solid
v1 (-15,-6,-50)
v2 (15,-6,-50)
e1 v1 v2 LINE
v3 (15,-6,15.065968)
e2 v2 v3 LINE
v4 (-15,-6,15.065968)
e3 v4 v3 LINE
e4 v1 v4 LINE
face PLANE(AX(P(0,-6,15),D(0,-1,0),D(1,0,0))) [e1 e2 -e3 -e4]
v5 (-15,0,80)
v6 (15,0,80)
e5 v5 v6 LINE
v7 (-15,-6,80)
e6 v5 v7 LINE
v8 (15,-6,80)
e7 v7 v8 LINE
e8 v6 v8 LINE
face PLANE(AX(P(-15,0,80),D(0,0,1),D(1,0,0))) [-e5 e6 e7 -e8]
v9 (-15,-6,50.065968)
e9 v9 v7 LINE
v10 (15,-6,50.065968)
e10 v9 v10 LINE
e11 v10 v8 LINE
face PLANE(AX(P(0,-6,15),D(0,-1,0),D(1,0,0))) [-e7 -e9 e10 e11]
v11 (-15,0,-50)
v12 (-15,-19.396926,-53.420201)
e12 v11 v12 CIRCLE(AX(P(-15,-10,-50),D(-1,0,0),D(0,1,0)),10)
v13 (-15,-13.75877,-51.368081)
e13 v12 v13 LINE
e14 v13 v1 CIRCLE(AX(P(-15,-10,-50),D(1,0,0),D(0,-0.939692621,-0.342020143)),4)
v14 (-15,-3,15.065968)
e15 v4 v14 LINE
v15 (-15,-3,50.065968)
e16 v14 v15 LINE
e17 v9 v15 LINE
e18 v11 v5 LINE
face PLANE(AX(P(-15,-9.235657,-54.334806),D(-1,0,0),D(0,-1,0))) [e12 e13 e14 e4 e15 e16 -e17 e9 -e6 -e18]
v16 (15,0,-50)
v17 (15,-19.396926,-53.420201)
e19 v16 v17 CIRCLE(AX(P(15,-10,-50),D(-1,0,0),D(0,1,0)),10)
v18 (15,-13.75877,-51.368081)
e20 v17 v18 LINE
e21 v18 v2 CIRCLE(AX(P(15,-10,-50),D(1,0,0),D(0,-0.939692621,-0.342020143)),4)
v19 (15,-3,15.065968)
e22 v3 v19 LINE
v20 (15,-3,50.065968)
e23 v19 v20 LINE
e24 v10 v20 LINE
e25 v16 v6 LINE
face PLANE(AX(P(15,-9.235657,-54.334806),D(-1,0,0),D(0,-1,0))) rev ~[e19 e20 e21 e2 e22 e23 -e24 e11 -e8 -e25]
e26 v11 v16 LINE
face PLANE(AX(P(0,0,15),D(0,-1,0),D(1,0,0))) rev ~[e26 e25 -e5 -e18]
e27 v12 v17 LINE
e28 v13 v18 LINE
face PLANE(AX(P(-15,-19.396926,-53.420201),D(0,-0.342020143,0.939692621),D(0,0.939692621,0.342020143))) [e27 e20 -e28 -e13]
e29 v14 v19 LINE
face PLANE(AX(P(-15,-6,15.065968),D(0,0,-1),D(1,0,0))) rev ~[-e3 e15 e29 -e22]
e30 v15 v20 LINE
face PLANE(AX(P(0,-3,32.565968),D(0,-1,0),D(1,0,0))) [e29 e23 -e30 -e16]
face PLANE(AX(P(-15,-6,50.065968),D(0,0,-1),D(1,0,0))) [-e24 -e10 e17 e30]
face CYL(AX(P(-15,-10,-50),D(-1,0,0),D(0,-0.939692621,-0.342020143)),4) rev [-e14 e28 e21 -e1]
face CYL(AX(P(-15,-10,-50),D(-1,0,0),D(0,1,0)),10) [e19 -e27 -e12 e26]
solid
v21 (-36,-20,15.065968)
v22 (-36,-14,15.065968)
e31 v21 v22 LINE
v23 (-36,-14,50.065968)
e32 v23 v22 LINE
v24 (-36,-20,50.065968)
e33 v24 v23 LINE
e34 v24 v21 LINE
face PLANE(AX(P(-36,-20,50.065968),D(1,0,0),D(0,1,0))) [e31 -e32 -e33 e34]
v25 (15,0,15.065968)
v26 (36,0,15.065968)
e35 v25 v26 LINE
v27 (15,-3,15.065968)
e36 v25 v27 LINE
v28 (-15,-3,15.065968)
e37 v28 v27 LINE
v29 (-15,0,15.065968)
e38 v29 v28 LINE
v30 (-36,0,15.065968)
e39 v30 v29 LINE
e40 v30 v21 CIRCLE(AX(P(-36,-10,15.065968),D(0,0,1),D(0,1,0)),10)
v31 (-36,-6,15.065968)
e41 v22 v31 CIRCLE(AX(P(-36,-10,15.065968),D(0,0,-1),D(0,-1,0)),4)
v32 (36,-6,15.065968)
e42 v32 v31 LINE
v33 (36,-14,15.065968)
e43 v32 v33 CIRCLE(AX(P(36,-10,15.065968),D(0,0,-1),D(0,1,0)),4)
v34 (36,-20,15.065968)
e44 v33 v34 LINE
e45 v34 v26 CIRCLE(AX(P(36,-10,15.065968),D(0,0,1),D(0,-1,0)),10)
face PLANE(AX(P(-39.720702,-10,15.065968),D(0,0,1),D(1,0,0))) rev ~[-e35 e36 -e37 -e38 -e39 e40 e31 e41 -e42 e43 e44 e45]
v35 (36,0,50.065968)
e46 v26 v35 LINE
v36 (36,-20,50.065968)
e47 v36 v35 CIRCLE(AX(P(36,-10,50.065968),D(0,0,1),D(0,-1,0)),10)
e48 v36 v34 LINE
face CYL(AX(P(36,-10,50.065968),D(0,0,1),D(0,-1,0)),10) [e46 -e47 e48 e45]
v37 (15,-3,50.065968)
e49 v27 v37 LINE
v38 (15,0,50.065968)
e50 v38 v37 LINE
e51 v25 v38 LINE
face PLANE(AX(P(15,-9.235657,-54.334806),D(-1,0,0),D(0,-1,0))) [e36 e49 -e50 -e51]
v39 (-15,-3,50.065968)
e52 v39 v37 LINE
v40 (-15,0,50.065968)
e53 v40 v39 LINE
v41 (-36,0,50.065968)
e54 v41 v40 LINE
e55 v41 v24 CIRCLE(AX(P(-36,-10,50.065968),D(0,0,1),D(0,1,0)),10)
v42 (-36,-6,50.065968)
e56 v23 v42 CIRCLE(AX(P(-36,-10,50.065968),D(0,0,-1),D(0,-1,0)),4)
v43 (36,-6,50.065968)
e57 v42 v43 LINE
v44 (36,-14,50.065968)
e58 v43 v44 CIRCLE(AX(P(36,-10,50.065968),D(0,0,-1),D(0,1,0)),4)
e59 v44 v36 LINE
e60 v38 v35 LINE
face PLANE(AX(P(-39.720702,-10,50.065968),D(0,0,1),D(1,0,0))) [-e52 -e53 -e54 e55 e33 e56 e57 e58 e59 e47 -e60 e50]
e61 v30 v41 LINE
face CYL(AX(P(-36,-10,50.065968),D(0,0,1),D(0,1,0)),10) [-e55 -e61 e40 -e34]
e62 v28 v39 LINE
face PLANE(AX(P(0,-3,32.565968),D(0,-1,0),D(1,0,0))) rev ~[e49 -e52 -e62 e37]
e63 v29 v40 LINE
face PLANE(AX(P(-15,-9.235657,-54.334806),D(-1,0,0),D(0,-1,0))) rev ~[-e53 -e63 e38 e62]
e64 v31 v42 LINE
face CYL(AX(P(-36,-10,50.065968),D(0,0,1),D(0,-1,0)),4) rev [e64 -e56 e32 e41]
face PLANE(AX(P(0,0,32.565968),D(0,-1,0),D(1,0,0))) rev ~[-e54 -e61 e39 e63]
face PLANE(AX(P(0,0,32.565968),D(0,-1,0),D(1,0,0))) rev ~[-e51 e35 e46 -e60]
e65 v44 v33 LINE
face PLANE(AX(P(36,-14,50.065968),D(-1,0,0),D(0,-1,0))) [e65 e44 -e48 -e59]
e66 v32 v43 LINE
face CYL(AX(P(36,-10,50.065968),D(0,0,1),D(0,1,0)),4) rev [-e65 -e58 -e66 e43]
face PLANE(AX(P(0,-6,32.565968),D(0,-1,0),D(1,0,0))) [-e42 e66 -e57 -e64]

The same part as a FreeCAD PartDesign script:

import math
import FreeCAD as App
import Part
import Sketcher
Q = App.Units.Quantity


def add_polygon(sketch, points):
    """Adds a closed chain of lines whose ends are joined by coincident constraints."""
    first, n = sketch.GeometryCount, len(points)
    for a, b in zip(points, points[1:] + points[:1]):
        sketch.addGeometry(Part.LineSegment(App.Vector(*a, 0), App.Vector(*b, 0)), False)
    for i in range(n):
        sketch.addConstraint(Sketcher.Constraint("Coincident", first + i, 2, first + (i + 1) % n, 1))

doc = App.newDocument("Part")
params = doc.addObject("Spreadsheet::Sheet", "Params")
for row, (alias, value) in enumerate([
    ("sketch1_width", "30 mm"),
    ("sketch1_height", "130 mm"),
    ("pad1_length", "6 mm"),
    ("sketch2_radius", "10 mm"),
    ("sketch2_radius2", "4 mm"),
    ("pad2_length", "30 mm"),
    ("sketch3_width", "30 mm"),
    ("sketch3_height", "35 mm"),
    ("pocket1_length", "3 mm"),
    ("sketch4_width", "72 mm"),
    ("sketch4_height", "35 mm"),
    ("pad3_length", "6 mm"),
    ("sketch5_radius", "10 mm"),
    ("sketch5_radius2", "4 mm"),
    ("pad4_length", "35 mm"),
], start=1):
    params.set(f"A{row}", alias)
    params.set(f"B{row}", "=" + value)
    params.setAlias(f"B{row}", alias)

body = doc.addObject("PartDesign::Body", "Body")

# Sketch on XZ plane
sketch1 = doc.addObject("Sketcher::SketchObject", "Sketch")
body.addObject(sketch1)
sketch1.AttachmentSupport = (doc.XZ_Plane, [""])
sketch1.MapMode = "FlatFace"
add_polygon(sketch1, [(-15, 80), (-15, -50), (15, -50), (15, 80)])  # lines 0-3
sketch1.addConstraint(Sketcher.Constraint("Vertical", 0))
sketch1.addConstraint(Sketcher.Constraint("Horizontal", 1))
sketch1.addConstraint(Sketcher.Constraint("Vertical", 2))
sketch1.addConstraint(Sketcher.Constraint("Horizontal", 3))
sketch1.addConstraint(Sketcher.Constraint("DistanceX", 1, 1, 1, 2, Q("30 mm")))
sketch1.addConstraint(Sketcher.Constraint("DistanceY", 0, 2, 0, 1, Q("130 mm")))
sketch1.addConstraint(Sketcher.Constraint("DistanceX", 0, 2, -1, 1, Q("15 mm")))
sketch1.addConstraint(Sketcher.Constraint("DistanceY", 0, 2, -1, 1, Q("50 mm")))
sketch1.setExpression("Constraints[8]", "Params.sketch1_width")
sketch1.setExpression("Constraints[9]", "Params.sketch1_height")
pad1 = doc.addObject("PartDesign::Pad", "Pad")
body.addObject(pad1)
pad1.Profile = sketch1
pad1.setExpression("Length", "Params.pad1_length")

# Sketch on YZ plane
sketch2 = doc.addObject("Sketcher::SketchObject", "Sketch001")
body.addObject(sketch2)
sketch2.AttachmentSupport = (doc.YZ_Plane, [""])
sketch2.MapMode = "FlatFace"
sketch2.AttachmentOffset = App.Placement(App.Vector(0, 0, -15), App.Rotation())
sketch2.addGeometry(Part.LineSegment(App.Vector(-6, -50, 0), App.Vector(0, -50, 0)), False)
sketch2.addGeometry(Part.ArcOfCircle(Part.Circle(App.Vector(-10, -50, 0), App.Vector(0, 0, 1), 10), math.radians(-160), math.radians(0)), False)
sketch2.addGeometry(Part.LineSegment(App.Vector(-19.4, -53.4, 0), App.Vector(-13.8, -51.4, 0)), False)
sketch2.addGeometry(Part.ArcOfCircle(Part.Circle(App.Vector(-10, -50, 0), App.Vector(0, 0, 1), 4), math.radians(-160), math.radians(0)), False)
sketch2.addConstraint(Sketcher.Constraint("Coincident", 0, 2, 1, 2))
sketch2.addConstraint(Sketcher.Constraint("Coincident", 1, 1, 2, 1))
sketch2.addConstraint(Sketcher.Constraint("Coincident", 2, 2, 3, 1))
sketch2.addConstraint(Sketcher.Constraint("Coincident", 3, 2, 0, 1))
sketch2.addConstraint(Sketcher.Constraint("Horizontal", 0))
sketch2.addConstraint(Sketcher.Constraint("Coincident", 3, 3, 1, 3))
sketch2.addConstraint(Sketcher.Constraint("PointOnObject", 0, 2, -2))
sketch2.addConstraint(Sketcher.Constraint("Horizontal", 3, 3, 0, 2))
sketch2.addConstraint(Sketcher.Constraint("Radius", 1, Q("10 mm")))
sketch2.addConstraint(Sketcher.Constraint("Radius", 3, Q("4 mm")))
sketch2.addConstraint(Sketcher.Constraint("Angle", 2, Q("20 deg")))
sketch2.addConstraint(Sketcher.Constraint("DistanceY", 1, 3, -1, 1, Q("50 mm")))
sketch2.addConstraint(Sketcher.Constraint("DistanceY", 1, 1, -1, 1, Q("53.420201 mm")))
sketch2.setExpression("Constraints[8]", "Params.sketch2_radius")
sketch2.setExpression("Constraints[9]", "Params.sketch2_radius2")
pad2 = doc.addObject("PartDesign::Pad", "Pad001")
body.addObject(pad2)
pad2.Profile = sketch2
pad2.setExpression("Length", "Params.pad2_length")

# Sketch on XZ plane
sketch3 = doc.addObject("Sketcher::SketchObject", "Sketch002")
body.addObject(sketch3)
sketch3.AttachmentSupport = (doc.XZ_Plane, [""])
sketch3.MapMode = "FlatFace"
sketch3.AttachmentOffset = App.Placement(App.Vector(0, 0, 6), App.Rotation())
add_polygon(sketch3, [(-15, 50), (-15, 15), (15, 15), (15, 50)])  # lines 0-3
sketch3.addConstraint(Sketcher.Constraint("Vertical", 0))
sketch3.addConstraint(Sketcher.Constraint("Horizontal", 1))
sketch3.addConstraint(Sketcher.Constraint("Vertical", 2))
sketch3.addConstraint(Sketcher.Constraint("Horizontal", 3))
sketch3.addConstraint(Sketcher.Constraint("DistanceX", 1, 1, 1, 2, Q("30 mm")))
sketch3.addConstraint(Sketcher.Constraint("DistanceY", 0, 2, 0, 1, Q("35 mm")))
sketch3.addConstraint(Sketcher.Constraint("DistanceX", 0, 2, -1, 1, Q("15 mm")))
sketch3.addConstraint(Sketcher.Constraint("DistanceY", -1, 1, 0, 2, Q("15.065968 mm")))
sketch3.setExpression("Constraints[8]", "Params.sketch3_width")
sketch3.setExpression("Constraints[9]", "Params.sketch3_height")
pocket1 = doc.addObject("PartDesign::Pocket", "Pocket")
body.addObject(pocket1)
pocket1.Profile = sketch3
pocket1.setExpression("Length", "Params.pocket1_length")
body2 = doc.addObject("PartDesign::Body", "Body001")

# Sketch on XZ plane
sketch4 = doc.addObject("Sketcher::SketchObject", "Sketch003")
body2.addObject(sketch4)
sketch4.AttachmentSupport = (doc.getObject("XZ_Plane001"), [""])
sketch4.MapMode = "FlatFace"
add_polygon(sketch4, [(-36, 50), (-36, 15), (36, 15), (36, 50)])  # lines 0-3
sketch4.addConstraint(Sketcher.Constraint("Vertical", 0))
sketch4.addConstraint(Sketcher.Constraint("Horizontal", 1))
sketch4.addConstraint(Sketcher.Constraint("Vertical", 2))
sketch4.addConstraint(Sketcher.Constraint("Horizontal", 3))
sketch4.addConstraint(Sketcher.Constraint("DistanceX", 1, 1, 1, 2, Q("72 mm")))
sketch4.addConstraint(Sketcher.Constraint("DistanceY", 0, 2, 0, 1, Q("35 mm")))
sketch4.addConstraint(Sketcher.Constraint("DistanceX", 0, 2, -1, 1, Q("36 mm")))
sketch4.addConstraint(Sketcher.Constraint("DistanceY", -1, 1, 0, 2, Q("15.065968 mm")))
sketch4.setExpression("Constraints[8]", "Params.sketch4_width")
sketch4.setExpression("Constraints[9]", "Params.sketch4_height")
pad3 = doc.addObject("PartDesign::Pad", "Pad002")
body2.addObject(pad3)
pad3.Profile = sketch4
pad3.setExpression("Length", "Params.pad3_length")

# Sketch on XY plane
sketch5 = doc.addObject("Sketcher::SketchObject", "Sketch004")
body2.addObject(sketch5)
sketch5.AttachmentSupport = (doc.getObject("XY_Plane001"), [""])
sketch5.MapMode = "FlatFace"
sketch5.AttachmentOffset = App.Placement(App.Vector(0, 0, 50.065968), App.Rotation())
sketch5.addGeometry(Part.LineSegment(App.Vector(-36, -6, 0), App.Vector(-36, 0, 0)), False)
sketch5.addGeometry(Part.ArcOfCircle(Part.Circle(App.Vector(-36, -10, 0), App.Vector(0, 0, 1), 10), math.radians(90), math.radians(270)), False)
sketch5.addGeometry(Part.LineSegment(App.Vector(-36, -20, 0), App.Vector(-36, -14, 0)), False)
sketch5.addGeometry(Part.ArcOfCircle(Part.Circle(App.Vector(-36, -10, 0), App.Vector(0, 0, 1), 4), math.radians(90), math.radians(270)), False)
sketch5.addGeometry(Part.ArcOfCircle(Part.Circle(App.Vector(36, -10, 0), App.Vector(0, 0, 1), 10), math.radians(-90), math.radians(90)), False)
sketch5.addGeometry(Part.LineSegment(App.Vector(36, 0, 0), App.Vector(36, -6, 0)), False)
sketch5.addGeometry(Part.ArcOfCircle(Part.Circle(App.Vector(36, -10, 0), App.Vector(0, 0, 1), 4), math.radians(-90), math.radians(90)), False)
sketch5.addGeometry(Part.LineSegment(App.Vector(36, -14, 0), App.Vector(36, -20, 0)), False)
sketch5.addConstraint(Sketcher.Constraint("Coincident", 0, 2, 1, 1))
sketch5.addConstraint(Sketcher.Constraint("Coincident", 1, 2, 2, 1))
sketch5.addConstraint(Sketcher.Constraint("Coincident", 2, 2, 3, 2))
sketch5.addConstraint(Sketcher.Constraint("Coincident", 3, 1, 0, 1))
sketch5.addConstraint(Sketcher.Constraint("Coincident", 4, 2, 5, 1))
sketch5.addConstraint(Sketcher.Constraint("Coincident", 5, 2, 6, 2))
sketch5.addConstraint(Sketcher.Constraint("Coincident", 6, 1, 7, 1))
sketch5.addConstraint(Sketcher.Constraint("Coincident", 7, 2, 4, 1))
sketch5.addConstraint(Sketcher.Constraint("Vertical", 0))
sketch5.addConstraint(Sketcher.Constraint("Vertical", 2))
sketch5.addConstraint(Sketcher.Constraint("Vertical", 5))
sketch5.addConstraint(Sketcher.Constraint("Vertical", 7))
sketch5.addConstraint(Sketcher.Constraint("Coincident", 3, 3, 1, 3))
sketch5.addConstraint(Sketcher.Constraint("Coincident", 6, 3, 4, 3))
sketch5.addConstraint(Sketcher.Constraint("Equal", 1, 4))
sketch5.addConstraint(Sketcher.Constraint("Equal", 3, 6))
sketch5.addConstraint(Sketcher.Constraint("Symmetric", 0, 2, 4, 2, -1, 1))
sketch5.addConstraint(Sketcher.Constraint("Symmetric", 1, 3, 4, 3, -2))
sketch5.addConstraint(Sketcher.Constraint("Vertical", 3, 3, 0, 2))
sketch5.addConstraint(Sketcher.Constraint("Vertical", 0, 2, 1, 2))
sketch5.addConstraint(Sketcher.Constraint("Vertical", 5, 2, 6, 1))
sketch5.addConstraint(Sketcher.Constraint("Radius", 1, Q("10 mm")))
sketch5.addConstraint(Sketcher.Constraint("Radius", 3, Q("4 mm")))
sketch5.addConstraint(Sketcher.Constraint("DistanceX", 1, 3, -1, 1, Q("36 mm")))
sketch5.setExpression("Constraints[21]", "Params.sketch5_radius")
sketch5.setExpression("Constraints[22]", "Params.sketch5_radius2")
pad4 = doc.addObject("PartDesign::Pad", "Pad003")
body2.addObject(pad4)
pad4.Profile = sketch5
pad4.setExpression("Length", "Params.pad4_length")
pad4.Reversed = True
doc.recompute()

body3 = doc.addObject("PartDesign::Body", "Body002")
body3.BaseFeature = body
boolean = doc.addObject("PartDesign::Boolean", "Boolean")
body2.addObject(boolean)
boolean.Type = "Cut"
boolean.addObjects([body3])
doc.recompute()

doc.recompute()
